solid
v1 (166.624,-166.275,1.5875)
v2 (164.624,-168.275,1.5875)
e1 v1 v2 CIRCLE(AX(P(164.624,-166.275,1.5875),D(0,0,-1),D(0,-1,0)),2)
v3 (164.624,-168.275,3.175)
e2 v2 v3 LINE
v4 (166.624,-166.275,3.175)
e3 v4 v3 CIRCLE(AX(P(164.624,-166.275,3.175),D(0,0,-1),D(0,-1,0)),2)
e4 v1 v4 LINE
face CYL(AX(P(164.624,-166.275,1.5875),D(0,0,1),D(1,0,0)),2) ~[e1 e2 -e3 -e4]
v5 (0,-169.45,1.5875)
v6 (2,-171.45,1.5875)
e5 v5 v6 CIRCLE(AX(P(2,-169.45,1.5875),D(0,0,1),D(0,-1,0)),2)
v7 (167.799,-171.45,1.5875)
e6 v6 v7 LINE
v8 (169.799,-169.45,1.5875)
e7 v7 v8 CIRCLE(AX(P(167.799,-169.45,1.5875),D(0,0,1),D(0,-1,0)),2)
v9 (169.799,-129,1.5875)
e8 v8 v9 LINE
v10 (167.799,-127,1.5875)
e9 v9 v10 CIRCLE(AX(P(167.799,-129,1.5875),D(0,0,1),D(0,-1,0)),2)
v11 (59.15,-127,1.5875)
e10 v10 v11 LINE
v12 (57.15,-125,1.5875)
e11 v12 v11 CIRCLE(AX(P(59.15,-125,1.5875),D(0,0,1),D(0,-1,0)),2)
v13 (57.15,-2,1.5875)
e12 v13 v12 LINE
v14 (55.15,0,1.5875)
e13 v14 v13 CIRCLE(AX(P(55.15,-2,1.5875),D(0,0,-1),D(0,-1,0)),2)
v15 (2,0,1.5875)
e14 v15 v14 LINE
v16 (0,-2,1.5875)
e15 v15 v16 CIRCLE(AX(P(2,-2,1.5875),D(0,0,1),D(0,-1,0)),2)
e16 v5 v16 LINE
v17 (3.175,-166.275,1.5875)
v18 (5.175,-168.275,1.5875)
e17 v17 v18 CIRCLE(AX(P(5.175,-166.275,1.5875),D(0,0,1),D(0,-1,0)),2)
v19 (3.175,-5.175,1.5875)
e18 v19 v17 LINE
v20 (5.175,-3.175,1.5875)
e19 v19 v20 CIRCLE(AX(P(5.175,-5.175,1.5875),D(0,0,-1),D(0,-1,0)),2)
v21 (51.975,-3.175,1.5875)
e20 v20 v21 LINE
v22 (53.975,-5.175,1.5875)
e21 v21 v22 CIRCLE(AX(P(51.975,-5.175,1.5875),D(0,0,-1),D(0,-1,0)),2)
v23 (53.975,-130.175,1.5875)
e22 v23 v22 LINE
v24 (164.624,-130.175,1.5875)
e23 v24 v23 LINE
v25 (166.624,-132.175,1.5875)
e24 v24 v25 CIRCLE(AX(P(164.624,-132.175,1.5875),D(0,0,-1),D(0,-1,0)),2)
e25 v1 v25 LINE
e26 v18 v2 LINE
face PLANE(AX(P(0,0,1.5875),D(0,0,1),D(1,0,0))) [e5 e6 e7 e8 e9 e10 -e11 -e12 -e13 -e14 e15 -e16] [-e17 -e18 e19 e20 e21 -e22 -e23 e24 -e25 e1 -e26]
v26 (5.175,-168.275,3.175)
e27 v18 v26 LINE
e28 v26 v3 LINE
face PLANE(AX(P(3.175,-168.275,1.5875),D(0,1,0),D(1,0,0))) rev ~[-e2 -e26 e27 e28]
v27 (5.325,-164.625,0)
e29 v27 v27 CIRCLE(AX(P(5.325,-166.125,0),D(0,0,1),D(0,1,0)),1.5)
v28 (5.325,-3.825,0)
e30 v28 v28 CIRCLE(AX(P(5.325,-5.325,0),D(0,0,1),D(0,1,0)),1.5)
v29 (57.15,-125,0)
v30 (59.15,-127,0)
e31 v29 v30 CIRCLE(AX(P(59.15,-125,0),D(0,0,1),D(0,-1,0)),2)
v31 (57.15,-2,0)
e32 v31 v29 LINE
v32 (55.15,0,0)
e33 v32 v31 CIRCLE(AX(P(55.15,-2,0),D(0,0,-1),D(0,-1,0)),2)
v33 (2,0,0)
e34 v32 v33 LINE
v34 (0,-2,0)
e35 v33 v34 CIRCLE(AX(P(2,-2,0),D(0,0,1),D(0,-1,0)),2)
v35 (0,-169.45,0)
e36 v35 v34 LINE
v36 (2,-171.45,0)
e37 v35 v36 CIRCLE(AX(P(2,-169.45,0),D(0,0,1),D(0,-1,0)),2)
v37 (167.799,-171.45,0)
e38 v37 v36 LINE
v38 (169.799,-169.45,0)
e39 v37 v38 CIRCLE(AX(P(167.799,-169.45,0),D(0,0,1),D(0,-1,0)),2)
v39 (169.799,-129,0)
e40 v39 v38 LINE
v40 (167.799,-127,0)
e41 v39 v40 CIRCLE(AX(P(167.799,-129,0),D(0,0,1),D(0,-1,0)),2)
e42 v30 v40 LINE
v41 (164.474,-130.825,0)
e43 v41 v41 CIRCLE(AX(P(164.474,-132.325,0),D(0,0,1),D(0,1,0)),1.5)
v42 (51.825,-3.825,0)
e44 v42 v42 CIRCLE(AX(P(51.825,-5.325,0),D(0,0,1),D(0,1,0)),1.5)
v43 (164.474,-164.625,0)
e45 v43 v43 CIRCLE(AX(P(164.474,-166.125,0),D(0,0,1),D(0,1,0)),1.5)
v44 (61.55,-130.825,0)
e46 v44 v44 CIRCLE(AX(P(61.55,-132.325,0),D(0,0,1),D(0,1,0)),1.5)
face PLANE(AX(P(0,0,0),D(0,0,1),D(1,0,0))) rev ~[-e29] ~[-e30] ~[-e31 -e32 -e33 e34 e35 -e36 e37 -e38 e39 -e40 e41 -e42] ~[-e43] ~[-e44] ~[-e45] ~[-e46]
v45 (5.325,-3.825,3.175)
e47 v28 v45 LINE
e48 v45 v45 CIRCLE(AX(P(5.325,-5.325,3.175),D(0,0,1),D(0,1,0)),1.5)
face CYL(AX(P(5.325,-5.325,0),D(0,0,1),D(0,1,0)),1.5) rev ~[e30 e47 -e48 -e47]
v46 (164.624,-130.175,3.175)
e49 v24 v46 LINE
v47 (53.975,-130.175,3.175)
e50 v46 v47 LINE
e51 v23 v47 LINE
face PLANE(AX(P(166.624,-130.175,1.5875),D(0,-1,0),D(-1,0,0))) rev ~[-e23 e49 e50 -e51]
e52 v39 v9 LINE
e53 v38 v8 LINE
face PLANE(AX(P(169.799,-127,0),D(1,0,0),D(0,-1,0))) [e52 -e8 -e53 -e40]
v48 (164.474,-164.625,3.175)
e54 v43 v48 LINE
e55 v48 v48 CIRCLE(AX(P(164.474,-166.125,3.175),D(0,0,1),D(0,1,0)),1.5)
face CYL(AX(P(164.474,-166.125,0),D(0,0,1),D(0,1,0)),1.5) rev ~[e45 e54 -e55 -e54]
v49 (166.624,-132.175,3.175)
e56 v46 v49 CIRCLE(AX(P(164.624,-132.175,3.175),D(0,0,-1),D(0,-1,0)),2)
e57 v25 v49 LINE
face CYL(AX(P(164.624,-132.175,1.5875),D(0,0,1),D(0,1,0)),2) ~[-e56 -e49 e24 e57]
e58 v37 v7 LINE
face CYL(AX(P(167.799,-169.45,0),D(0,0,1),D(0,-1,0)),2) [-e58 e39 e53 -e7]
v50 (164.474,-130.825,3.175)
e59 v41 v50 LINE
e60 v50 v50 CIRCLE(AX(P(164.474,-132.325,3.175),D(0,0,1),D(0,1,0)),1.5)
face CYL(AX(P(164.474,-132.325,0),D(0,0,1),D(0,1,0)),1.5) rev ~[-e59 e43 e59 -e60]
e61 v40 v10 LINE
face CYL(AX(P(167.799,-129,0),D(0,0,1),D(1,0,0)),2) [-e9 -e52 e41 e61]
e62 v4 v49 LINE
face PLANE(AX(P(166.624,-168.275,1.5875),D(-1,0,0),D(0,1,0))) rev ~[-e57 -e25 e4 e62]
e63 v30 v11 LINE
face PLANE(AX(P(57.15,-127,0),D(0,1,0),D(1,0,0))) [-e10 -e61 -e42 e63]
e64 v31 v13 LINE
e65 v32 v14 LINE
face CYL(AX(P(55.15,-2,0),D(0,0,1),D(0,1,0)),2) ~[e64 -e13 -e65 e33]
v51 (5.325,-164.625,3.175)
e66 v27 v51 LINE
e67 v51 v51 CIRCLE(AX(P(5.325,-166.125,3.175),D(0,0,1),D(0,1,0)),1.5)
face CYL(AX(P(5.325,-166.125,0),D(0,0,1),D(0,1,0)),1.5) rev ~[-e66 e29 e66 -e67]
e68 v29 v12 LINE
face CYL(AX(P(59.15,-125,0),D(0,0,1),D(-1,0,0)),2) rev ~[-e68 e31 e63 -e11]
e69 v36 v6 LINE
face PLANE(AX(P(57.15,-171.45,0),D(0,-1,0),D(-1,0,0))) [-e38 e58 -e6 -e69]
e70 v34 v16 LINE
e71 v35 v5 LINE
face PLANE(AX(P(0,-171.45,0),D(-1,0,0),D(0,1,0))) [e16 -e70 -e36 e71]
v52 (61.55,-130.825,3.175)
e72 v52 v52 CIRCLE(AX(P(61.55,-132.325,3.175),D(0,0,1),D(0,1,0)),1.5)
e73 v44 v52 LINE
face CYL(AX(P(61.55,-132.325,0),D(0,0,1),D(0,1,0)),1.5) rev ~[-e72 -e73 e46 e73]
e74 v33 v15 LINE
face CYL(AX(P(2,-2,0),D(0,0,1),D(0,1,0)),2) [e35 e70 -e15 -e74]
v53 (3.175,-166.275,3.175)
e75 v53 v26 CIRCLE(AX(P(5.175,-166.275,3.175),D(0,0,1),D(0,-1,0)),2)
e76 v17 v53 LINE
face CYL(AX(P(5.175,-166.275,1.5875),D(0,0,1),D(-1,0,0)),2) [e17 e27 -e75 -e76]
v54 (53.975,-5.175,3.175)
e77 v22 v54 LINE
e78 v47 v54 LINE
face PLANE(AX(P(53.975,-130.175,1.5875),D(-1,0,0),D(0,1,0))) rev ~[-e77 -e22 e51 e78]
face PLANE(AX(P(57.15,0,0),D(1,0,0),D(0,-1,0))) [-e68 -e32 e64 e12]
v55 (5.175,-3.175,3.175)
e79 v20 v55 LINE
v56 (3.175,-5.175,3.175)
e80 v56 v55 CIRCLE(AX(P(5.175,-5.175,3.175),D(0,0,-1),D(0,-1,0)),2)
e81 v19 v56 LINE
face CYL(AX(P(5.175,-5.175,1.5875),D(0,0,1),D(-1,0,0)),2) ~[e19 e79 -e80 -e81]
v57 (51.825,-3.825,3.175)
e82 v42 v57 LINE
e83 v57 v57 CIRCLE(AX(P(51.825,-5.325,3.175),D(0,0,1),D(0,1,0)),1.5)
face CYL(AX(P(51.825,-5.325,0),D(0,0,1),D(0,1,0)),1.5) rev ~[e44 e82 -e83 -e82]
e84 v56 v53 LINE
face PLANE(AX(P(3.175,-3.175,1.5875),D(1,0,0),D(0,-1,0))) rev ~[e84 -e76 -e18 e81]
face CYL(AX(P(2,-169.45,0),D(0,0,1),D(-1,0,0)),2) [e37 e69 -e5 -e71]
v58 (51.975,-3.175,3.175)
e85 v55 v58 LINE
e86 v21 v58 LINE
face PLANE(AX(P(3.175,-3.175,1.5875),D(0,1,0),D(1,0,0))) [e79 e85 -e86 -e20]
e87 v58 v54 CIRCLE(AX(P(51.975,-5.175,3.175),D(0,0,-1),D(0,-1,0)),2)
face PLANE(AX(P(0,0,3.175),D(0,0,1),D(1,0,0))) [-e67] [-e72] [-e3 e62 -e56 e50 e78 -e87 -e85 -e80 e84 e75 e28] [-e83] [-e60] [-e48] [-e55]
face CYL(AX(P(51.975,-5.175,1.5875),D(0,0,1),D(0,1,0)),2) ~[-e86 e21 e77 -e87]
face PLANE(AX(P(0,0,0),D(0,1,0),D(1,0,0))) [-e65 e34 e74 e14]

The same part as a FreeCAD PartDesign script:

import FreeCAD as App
import Part
import Sketcher
from FreeCAD import Vector
Q = App.Units.Quantity


def edges_at(feature, points):
    """Names of the edges that pass closest to the given points."""
    edges = feature.Shape.Edges
    near = lambda p: min(range(len(edges)), key=lambda i: edges[i].distToShape(Part.Vertex(*p))[0])
    return sorted({f"Edge{near(p) + 1}" for p in points})

doc = App.newDocument("Part")
body = doc.addObject("PartDesign::Body", "Body")

# Sketch on XY plane
sketch1 = body.newObject("Sketcher::SketchObject", "Sketch")
sketch1.AttachmentSupport = (doc.getObject("XY_Plane"), [""])
sketch1.MapMode = "FlatFace"
sketch1.addGeometry([
    Part.LineSegment(Vector(57.15, 0, 0), Vector(0, 0, 0)),  # 0
    Part.LineSegment(Vector(0, 0, 0), Vector(0, -171.45, 0)),  # 1
    Part.LineSegment(Vector(0, -171.45, 0), Vector(169.799, -171.45, 0)),  # 2
    Part.LineSegment(Vector(169.799, -171.45, 0), Vector(169.799, -127, 0)),  # 3
    Part.LineSegment(Vector(169.799, -127, 0), Vector(57.15, -127, 0)),  # 4
    Part.LineSegment(Vector(57.15, -127, 0), Vector(57.15, 0, 0)),  # 5
], False)
sketch1.addConstraint([
    Sketcher.Constraint("Coincident", 0, 2, 1, 1),
    Sketcher.Constraint("Coincident", 1, 2, 2, 1),
    Sketcher.Constraint("Coincident", 2, 2, 3, 1),
    Sketcher.Constraint("Coincident", 3, 2, 4, 1),
    Sketcher.Constraint("Coincident", 4, 2, 5, 1),
    Sketcher.Constraint("Coincident", 5, 2, 0, 1),
    Sketcher.Constraint("Horizontal", 0),
    Sketcher.Constraint("Vertical", 1),
    Sketcher.Constraint("Horizontal", 2),
    Sketcher.Constraint("Vertical", 3),
    Sketcher.Constraint("Horizontal", 4),
    Sketcher.Constraint("Vertical", 5),
    Sketcher.Constraint("Coincident", 0, 2, -1, 1),
    Sketcher.Constraint("DistanceY", 5, 1, 5, 2, Q("5 in")),
    Sketcher.Constraint("DistanceX", 0, 2, 0, 1, Q("2.25 in")),
    Sketcher.Constraint("DistanceY", 1, 2, 1, 1, Q("6.75 in")),
    Sketcher.Constraint("DistanceX", 2, 1, 2, 2, Q("6.685 in")),
])
pad1 = body.newObject("PartDesign::Pad", "Pad")
pad1.Profile = sketch1
pad1.Length = Q("0.0625 in")

# Sketch on XY plane
sketch2 = body.newObject("Sketcher::SketchObject", "Sketch001")
sketch2.AttachmentSupport = (doc.getObject("XY_Plane"), [""])
sketch2.MapMode = "FlatFace"
sketch2.AttachmentOffset = App.Placement(Vector(0, 0, 0.0625 * 25.4), App.Rotation())
sketch2.addGeometry([
    Part.LineSegment(Vector(53.975, -3.175, 0), Vector(3.175, -3.175, 0)),  # 0
    Part.LineSegment(Vector(3.175, -3.175, 0), Vector(3.175, -168.275, 0)),  # 1
    Part.LineSegment(Vector(3.175, -168.275, 0), Vector(166.624, -168.275, 0)),  # 2
    Part.LineSegment(Vector(166.624, -168.275, 0), Vector(166.624, -130.175, 0)),  # 3
    Part.LineSegment(Vector(166.624, -130.175, 0), Vector(53.975, -130.175, 0)),  # 4
    Part.LineSegment(Vector(53.975, -130.175, 0), Vector(53.975, -3.175, 0)),  # 5
], False)
sketch2.addConstraint([
    Sketcher.Constraint("Coincident", 0, 2, 1, 1),
    Sketcher.Constraint("Coincident", 1, 2, 2, 1),
    Sketcher.Constraint("Coincident", 2, 2, 3, 1),
    Sketcher.Constraint("Coincident", 3, 2, 4, 1),
    Sketcher.Constraint("Coincident", 4, 2, 5, 1),
    Sketcher.Constraint("Coincident", 5, 2, 0, 1),
    Sketcher.Constraint("Horizontal", 0),
    Sketcher.Constraint("Vertical", 1),
    Sketcher.Constraint("Horizontal", 2),
    Sketcher.Constraint("Vertical", 3),
    Sketcher.Constraint("Horizontal", 4),
    Sketcher.Constraint("Vertical", 5),
    Sketcher.Constraint("DistanceX", 0, 2, 0, 1, Q("2 in")),
    Sketcher.Constraint("DistanceY", 5, 1, 5, 2, Q("5 in")),
    Sketcher.Constraint("DistanceY", 1, 2, 1, 1, Q("6.5 in")),
    Sketcher.Constraint("DistanceX", 2, 1, 2, 2, Q("6.435 in")),
    Sketcher.Constraint("DistanceX", -1, 1, 2, 2, Q("6.56 in")),
    Sketcher.Constraint("DistanceY", 0, 2, -1, 1, Q("0.125 in")),
])
pad2 = body.newObject("PartDesign::Pad", "Pad001")
pad2.Profile = sketch2
pad2.Length = Q("0.0625 in")

# Sketch on XY plane
sketch3 = body.newObject("Sketcher::SketchObject", "Sketch002")
sketch3.AttachmentSupport = (doc.getObject("XY_Plane"), [""])
sketch3.MapMode = "FlatFace"
sketch3.addGeometry([
    Part.Circle(Vector(51.825, -5.325, 0), Vector(0, 0, 1), 1.5),  # 0
    Part.Circle(Vector(5.325, -5.325, 0), Vector(0, 0, 1), 1.5),  # 1
    Part.Circle(Vector(61.55, -132.325, 0), Vector(0, 0, 1), 1.5),  # 2
    Part.Circle(Vector(5.325, -166.125, 0), Vector(0, 0, 1), 1.5),  # 3
    Part.Circle(Vector(164.474, -166.125, 0), Vector(0, 0, 1), 1.5),  # 4
    Part.Circle(Vector(164.474, -132.325, 0), Vector(0, 0, 1), 1.5),  # 5
], False)
sketch3.addConstraint([
    Sketcher.Constraint("Equal", 0, 1),
    Sketcher.Constraint("Equal", 1, 2),
    Sketcher.Constraint("Equal", 2, 3),
    Sketcher.Constraint("Equal", 3, 4),
    Sketcher.Constraint("Equal", 4, 5),
    Sketcher.Constraint("Horizontal", 0, 3, 1, 3),
    Sketcher.Constraint("Horizontal", 3, 3, 4, 3),
    Sketcher.Constraint("Horizontal", 2, 3, 5, 3),
    Sketcher.Constraint("Vertical", 1, 3, 3, 3),
    Sketcher.Constraint("Vertical", 4, 3, 5, 3),
    Sketcher.Constraint("DistanceY", 2, 3, 0, 3, Q("5 in")),
    Sketcher.Constraint("Diameter", 0, Q("0.1181 in")),
    Sketcher.Constraint("DistanceX", 0, 3, 4, 3, Q("4.435 in")),
    Sketcher.Constraint("DistanceX", 1, 3, 0, 3, Q("1.8307 in")),
    Sketcher.Constraint("DistanceY", 3, 3, 2, 3, Q("1.3307 in")),
    Sketcher.Constraint("DistanceX", -1, 1, 0, 3, 51.825),
    Sketcher.Constraint("DistanceY", 0, 3, -1, 1, 5.325),
    Sketcher.Constraint("DistanceX", -1, 1, 2, 3, 61.55),
])
doc.recompute()
hole = body.newObject("PartDesign::Hole", "Hole")
hole.Profile = sketch3
hole.ThreadType = "None"
hole.Diameter = Q("0.1181102 in")
hole.DepthType = "Dimension"
hole.Depth = Q("0.125 in")
hole.DrillPoint = "Flat"
hole.Reversed = True
doc.recompute()

fillet = body.newObject("PartDesign::Fillet", "Fillet")
fillet.Base = (hole, edges_at(hole, [
    (169.799, -127, 0.794),
    (166.624, -130.175, 2.381),
    (166.624, -168.275, 2.381),
    (169.799, -171.45, 0.794),
    (57.15, -127, 0.794),
    (3.175, -168.275, 2.381),
    (0, -171.45, 0.794),
    (57.15, 0, 0.794),
    (53.975, -3.175, 2.381),
    (3.175, -3.175, 2.381),
    (0, 0, 0.794),
]))
fillet.Radius = 2

doc.recompute()
